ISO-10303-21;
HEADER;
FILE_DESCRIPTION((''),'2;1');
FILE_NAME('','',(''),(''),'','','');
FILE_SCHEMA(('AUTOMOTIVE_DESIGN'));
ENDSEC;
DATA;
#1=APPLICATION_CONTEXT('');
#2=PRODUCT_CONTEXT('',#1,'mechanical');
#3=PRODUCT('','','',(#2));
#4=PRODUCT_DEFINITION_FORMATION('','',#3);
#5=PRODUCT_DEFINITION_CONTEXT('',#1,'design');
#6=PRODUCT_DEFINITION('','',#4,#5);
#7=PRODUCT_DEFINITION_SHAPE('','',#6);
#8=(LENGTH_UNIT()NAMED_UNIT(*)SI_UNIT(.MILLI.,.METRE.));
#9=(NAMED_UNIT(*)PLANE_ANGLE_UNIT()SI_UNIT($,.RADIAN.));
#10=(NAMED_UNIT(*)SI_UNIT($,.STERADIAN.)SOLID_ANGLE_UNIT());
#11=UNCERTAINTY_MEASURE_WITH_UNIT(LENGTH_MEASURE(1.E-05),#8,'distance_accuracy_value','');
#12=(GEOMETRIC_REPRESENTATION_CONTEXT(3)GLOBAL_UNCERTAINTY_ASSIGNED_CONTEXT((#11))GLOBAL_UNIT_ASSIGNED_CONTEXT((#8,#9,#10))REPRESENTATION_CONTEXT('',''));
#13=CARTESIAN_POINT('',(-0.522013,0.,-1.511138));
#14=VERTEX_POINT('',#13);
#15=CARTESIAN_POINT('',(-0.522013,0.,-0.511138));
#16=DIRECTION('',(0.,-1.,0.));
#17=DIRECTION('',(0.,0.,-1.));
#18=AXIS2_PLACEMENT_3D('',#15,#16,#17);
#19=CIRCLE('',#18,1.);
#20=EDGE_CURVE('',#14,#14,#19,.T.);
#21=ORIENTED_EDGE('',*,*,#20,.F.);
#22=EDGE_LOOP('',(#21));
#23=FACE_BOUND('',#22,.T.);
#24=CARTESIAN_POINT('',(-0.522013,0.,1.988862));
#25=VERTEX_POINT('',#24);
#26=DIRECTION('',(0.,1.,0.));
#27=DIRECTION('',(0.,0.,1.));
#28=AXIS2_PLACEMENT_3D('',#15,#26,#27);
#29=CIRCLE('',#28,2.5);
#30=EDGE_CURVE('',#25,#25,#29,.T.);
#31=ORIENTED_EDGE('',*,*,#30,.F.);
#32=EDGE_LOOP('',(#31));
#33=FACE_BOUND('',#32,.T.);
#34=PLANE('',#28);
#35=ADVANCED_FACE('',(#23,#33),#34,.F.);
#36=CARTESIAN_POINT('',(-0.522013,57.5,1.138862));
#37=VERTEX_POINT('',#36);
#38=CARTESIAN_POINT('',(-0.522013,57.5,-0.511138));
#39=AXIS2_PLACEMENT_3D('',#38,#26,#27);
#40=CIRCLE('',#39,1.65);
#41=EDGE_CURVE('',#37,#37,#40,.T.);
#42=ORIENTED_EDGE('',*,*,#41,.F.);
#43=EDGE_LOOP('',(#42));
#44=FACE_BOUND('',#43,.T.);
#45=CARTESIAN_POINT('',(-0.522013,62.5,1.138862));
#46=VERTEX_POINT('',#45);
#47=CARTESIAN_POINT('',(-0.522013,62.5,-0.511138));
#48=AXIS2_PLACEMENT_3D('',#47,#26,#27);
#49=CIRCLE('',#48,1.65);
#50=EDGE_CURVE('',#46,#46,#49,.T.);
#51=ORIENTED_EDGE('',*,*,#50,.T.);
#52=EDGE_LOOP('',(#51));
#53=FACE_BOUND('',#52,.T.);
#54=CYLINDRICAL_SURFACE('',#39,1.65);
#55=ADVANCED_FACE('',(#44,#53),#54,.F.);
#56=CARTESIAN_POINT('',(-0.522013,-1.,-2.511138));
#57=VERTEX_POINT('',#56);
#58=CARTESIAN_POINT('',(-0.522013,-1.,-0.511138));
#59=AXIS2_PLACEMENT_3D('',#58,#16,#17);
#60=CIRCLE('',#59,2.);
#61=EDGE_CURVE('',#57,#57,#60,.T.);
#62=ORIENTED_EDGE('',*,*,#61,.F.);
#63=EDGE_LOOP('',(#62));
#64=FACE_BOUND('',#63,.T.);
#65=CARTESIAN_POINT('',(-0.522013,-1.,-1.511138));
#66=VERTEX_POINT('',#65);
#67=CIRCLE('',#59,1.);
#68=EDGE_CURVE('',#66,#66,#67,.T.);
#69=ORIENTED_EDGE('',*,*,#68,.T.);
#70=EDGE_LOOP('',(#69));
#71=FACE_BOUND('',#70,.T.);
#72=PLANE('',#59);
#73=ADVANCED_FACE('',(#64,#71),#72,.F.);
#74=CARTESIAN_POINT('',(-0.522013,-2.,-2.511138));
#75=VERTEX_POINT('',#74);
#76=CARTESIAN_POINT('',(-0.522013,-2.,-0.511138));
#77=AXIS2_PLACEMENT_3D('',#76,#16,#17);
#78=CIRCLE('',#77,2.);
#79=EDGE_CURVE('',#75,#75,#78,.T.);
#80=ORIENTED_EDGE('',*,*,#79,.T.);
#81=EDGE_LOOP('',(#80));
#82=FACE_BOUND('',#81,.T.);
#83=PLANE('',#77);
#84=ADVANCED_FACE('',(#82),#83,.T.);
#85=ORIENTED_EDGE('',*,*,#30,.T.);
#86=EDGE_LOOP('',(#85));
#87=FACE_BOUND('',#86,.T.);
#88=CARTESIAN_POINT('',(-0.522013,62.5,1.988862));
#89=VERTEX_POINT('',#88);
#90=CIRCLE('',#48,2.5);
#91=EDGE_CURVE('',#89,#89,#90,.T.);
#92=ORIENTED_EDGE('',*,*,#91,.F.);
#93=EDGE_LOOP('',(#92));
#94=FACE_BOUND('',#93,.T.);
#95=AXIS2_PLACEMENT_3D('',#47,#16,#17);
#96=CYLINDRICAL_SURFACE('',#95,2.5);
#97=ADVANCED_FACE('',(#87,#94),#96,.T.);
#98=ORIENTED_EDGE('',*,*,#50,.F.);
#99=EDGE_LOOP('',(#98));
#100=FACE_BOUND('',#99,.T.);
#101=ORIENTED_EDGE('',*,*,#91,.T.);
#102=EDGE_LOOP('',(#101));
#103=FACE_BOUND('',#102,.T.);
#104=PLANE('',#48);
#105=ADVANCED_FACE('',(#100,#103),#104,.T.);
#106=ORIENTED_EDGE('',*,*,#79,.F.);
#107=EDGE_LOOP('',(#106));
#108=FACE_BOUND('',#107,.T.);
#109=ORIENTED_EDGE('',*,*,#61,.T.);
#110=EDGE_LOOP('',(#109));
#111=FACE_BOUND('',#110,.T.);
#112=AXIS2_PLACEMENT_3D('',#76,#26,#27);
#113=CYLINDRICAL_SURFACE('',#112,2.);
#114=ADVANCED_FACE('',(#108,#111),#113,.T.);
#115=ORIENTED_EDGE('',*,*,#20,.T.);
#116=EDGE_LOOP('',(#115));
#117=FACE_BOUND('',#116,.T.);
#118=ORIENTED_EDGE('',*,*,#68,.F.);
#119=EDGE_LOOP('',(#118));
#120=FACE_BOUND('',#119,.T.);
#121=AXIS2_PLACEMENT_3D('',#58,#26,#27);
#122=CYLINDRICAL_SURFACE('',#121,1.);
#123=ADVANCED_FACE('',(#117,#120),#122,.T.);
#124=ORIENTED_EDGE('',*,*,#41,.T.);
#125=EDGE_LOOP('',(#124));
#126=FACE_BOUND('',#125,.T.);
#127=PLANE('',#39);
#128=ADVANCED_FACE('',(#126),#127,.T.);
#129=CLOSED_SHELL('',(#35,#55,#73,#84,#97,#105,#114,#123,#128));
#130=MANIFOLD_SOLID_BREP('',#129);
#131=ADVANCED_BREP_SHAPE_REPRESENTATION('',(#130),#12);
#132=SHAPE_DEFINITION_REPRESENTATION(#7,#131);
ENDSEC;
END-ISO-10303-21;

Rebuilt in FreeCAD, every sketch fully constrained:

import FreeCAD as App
import Part
import Sketcher
from FreeCAD import Vector

doc = App.newDocument("Part")
body = doc.addObject("PartDesign::Body", "Body")

sketch1 = body.newObject("Sketcher::SketchObject", "Sketch")
sketch1.AttachmentSupport = (doc.getObject("XZ_Plane"), [""])
sketch1.MapMode = "FlatFace"
sketch1.addGeometry(Part.Circle(Vector(-0.5, -0.5, 0), Vector(0, 0, 1), 2.5), False)
sketch1.addConstraint([
    Sketcher.Constraint("Diameter", 0, 5.0),
    Sketcher.Constraint("DistanceY", 0, 3, -1, 1, 0.511138),
    Sketcher.Constraint("DistanceX", 0, 3, -1, 1, 0.522013),
])
pad1 = body.newObject("PartDesign::Pad", "Pad")
pad1.Profile = sketch1
pad1.Length = 62.5
pad1.Reversed = True

sketch2 = body.newObject("Sketcher::SketchObject", "Sketch001")
sketch2.AttachmentSupport = (doc.getObject("XZ_Plane"), [""])
sketch2.MapMode = "FlatFace"
sketch2.addGeometry(Part.Circle(Vector(-0.5, -0.5, 0), Vector(0, 0, 1), 2), False)
sketch2.addConstraint([
    Sketcher.Constraint("Diameter", 0, 4.0),
    Sketcher.Constraint("DistanceY", 0, 3, -1, 1, 0.511138),
    Sketcher.Constraint("DistanceX", 0, 3, -1, 1, 0.522013),
])
pad2 = body.newObject("PartDesign::Pad", "Pad001")
pad2.Profile = sketch2
pad2.Length = 1
pad2.Reversed = True

sketch3 = body.newObject("Sketcher::SketchObject", "Sketch002")
sketch3.AttachmentSupport = (doc.getObject("XZ_Plane"), [""])
sketch3.MapMode = "FlatFace"
sketch3.addGeometry(Part.Circle(Vector(-0.5, -0.5, 0), Vector(0, 0, 1), 1), False)
sketch3.addConstraint([
    Sketcher.Constraint("Diameter", 0, 2.0),
    Sketcher.Constraint("DistanceY", 0, 3, -1, 1, 0.511138),
    Sketcher.Constraint("DistanceX", 0, 3, -1, 1, 0.522013),
])
pad3 = body.newObject("PartDesign::Pad", "Pad002")
pad3.Profile = sketch3
pad3.Length = 1

sketch4 = body.newObject("Sketcher::SketchObject", "Sketch003")
sketch4.AttachmentSupport = (doc.getObject("XZ_Plane"), [""])
sketch4.MapMode = "FlatFace"
sketch4.AttachmentOffset = App.Placement(Vector(0, 0, 1), App.Rotation())
sketch4.addGeometry(Part.Circle(Vector(-0.5, -0.5, 0), Vector(0, 0, 1), 2), False)
sketch4.addConstraint([
    Sketcher.Constraint("Diameter", 0, 4.0),
    Sketcher.Constraint("DistanceY", 0, 3, -1, 1, 0.511138),
    Sketcher.Constraint("DistanceX", 0, 3, -1, 1, 0.522013),
])
pad4 = body.newObject("PartDesign::Pad", "Pad003")
pad4.Profile = sketch4
pad4.Length = 1

sketch5 = body.newObject("Sketcher::SketchObject", "Sketch004")
sketch5.AttachmentSupport = (doc.getObject("XZ_Plane"), [""])
sketch5.MapMode = "FlatFace"
sketch5.AttachmentOffset = App.Placement(Vector(0, 0, -62.5), App.Rotation())
sketch5.addGeometry(Part.Circle(Vector(-0.5, -0.5, 0), Vector(0, 0, 1), 1.6), False)
sketch5.addConstraint([
    Sketcher.Constraint("Diameter", 0, 3.3),
    Sketcher.Constraint("DistanceY", 0, 3, -1, 1, 0.511138),
    Sketcher.Constraint("DistanceX", 0, 3, -1, 1, 0.522013),
])
pocket1 = body.newObject("PartDesign::Pocket", "Pocket")
pocket1.Profile = sketch5
pocket1.Length = 5
pocket1.Reversed = True

doc.recompute()
